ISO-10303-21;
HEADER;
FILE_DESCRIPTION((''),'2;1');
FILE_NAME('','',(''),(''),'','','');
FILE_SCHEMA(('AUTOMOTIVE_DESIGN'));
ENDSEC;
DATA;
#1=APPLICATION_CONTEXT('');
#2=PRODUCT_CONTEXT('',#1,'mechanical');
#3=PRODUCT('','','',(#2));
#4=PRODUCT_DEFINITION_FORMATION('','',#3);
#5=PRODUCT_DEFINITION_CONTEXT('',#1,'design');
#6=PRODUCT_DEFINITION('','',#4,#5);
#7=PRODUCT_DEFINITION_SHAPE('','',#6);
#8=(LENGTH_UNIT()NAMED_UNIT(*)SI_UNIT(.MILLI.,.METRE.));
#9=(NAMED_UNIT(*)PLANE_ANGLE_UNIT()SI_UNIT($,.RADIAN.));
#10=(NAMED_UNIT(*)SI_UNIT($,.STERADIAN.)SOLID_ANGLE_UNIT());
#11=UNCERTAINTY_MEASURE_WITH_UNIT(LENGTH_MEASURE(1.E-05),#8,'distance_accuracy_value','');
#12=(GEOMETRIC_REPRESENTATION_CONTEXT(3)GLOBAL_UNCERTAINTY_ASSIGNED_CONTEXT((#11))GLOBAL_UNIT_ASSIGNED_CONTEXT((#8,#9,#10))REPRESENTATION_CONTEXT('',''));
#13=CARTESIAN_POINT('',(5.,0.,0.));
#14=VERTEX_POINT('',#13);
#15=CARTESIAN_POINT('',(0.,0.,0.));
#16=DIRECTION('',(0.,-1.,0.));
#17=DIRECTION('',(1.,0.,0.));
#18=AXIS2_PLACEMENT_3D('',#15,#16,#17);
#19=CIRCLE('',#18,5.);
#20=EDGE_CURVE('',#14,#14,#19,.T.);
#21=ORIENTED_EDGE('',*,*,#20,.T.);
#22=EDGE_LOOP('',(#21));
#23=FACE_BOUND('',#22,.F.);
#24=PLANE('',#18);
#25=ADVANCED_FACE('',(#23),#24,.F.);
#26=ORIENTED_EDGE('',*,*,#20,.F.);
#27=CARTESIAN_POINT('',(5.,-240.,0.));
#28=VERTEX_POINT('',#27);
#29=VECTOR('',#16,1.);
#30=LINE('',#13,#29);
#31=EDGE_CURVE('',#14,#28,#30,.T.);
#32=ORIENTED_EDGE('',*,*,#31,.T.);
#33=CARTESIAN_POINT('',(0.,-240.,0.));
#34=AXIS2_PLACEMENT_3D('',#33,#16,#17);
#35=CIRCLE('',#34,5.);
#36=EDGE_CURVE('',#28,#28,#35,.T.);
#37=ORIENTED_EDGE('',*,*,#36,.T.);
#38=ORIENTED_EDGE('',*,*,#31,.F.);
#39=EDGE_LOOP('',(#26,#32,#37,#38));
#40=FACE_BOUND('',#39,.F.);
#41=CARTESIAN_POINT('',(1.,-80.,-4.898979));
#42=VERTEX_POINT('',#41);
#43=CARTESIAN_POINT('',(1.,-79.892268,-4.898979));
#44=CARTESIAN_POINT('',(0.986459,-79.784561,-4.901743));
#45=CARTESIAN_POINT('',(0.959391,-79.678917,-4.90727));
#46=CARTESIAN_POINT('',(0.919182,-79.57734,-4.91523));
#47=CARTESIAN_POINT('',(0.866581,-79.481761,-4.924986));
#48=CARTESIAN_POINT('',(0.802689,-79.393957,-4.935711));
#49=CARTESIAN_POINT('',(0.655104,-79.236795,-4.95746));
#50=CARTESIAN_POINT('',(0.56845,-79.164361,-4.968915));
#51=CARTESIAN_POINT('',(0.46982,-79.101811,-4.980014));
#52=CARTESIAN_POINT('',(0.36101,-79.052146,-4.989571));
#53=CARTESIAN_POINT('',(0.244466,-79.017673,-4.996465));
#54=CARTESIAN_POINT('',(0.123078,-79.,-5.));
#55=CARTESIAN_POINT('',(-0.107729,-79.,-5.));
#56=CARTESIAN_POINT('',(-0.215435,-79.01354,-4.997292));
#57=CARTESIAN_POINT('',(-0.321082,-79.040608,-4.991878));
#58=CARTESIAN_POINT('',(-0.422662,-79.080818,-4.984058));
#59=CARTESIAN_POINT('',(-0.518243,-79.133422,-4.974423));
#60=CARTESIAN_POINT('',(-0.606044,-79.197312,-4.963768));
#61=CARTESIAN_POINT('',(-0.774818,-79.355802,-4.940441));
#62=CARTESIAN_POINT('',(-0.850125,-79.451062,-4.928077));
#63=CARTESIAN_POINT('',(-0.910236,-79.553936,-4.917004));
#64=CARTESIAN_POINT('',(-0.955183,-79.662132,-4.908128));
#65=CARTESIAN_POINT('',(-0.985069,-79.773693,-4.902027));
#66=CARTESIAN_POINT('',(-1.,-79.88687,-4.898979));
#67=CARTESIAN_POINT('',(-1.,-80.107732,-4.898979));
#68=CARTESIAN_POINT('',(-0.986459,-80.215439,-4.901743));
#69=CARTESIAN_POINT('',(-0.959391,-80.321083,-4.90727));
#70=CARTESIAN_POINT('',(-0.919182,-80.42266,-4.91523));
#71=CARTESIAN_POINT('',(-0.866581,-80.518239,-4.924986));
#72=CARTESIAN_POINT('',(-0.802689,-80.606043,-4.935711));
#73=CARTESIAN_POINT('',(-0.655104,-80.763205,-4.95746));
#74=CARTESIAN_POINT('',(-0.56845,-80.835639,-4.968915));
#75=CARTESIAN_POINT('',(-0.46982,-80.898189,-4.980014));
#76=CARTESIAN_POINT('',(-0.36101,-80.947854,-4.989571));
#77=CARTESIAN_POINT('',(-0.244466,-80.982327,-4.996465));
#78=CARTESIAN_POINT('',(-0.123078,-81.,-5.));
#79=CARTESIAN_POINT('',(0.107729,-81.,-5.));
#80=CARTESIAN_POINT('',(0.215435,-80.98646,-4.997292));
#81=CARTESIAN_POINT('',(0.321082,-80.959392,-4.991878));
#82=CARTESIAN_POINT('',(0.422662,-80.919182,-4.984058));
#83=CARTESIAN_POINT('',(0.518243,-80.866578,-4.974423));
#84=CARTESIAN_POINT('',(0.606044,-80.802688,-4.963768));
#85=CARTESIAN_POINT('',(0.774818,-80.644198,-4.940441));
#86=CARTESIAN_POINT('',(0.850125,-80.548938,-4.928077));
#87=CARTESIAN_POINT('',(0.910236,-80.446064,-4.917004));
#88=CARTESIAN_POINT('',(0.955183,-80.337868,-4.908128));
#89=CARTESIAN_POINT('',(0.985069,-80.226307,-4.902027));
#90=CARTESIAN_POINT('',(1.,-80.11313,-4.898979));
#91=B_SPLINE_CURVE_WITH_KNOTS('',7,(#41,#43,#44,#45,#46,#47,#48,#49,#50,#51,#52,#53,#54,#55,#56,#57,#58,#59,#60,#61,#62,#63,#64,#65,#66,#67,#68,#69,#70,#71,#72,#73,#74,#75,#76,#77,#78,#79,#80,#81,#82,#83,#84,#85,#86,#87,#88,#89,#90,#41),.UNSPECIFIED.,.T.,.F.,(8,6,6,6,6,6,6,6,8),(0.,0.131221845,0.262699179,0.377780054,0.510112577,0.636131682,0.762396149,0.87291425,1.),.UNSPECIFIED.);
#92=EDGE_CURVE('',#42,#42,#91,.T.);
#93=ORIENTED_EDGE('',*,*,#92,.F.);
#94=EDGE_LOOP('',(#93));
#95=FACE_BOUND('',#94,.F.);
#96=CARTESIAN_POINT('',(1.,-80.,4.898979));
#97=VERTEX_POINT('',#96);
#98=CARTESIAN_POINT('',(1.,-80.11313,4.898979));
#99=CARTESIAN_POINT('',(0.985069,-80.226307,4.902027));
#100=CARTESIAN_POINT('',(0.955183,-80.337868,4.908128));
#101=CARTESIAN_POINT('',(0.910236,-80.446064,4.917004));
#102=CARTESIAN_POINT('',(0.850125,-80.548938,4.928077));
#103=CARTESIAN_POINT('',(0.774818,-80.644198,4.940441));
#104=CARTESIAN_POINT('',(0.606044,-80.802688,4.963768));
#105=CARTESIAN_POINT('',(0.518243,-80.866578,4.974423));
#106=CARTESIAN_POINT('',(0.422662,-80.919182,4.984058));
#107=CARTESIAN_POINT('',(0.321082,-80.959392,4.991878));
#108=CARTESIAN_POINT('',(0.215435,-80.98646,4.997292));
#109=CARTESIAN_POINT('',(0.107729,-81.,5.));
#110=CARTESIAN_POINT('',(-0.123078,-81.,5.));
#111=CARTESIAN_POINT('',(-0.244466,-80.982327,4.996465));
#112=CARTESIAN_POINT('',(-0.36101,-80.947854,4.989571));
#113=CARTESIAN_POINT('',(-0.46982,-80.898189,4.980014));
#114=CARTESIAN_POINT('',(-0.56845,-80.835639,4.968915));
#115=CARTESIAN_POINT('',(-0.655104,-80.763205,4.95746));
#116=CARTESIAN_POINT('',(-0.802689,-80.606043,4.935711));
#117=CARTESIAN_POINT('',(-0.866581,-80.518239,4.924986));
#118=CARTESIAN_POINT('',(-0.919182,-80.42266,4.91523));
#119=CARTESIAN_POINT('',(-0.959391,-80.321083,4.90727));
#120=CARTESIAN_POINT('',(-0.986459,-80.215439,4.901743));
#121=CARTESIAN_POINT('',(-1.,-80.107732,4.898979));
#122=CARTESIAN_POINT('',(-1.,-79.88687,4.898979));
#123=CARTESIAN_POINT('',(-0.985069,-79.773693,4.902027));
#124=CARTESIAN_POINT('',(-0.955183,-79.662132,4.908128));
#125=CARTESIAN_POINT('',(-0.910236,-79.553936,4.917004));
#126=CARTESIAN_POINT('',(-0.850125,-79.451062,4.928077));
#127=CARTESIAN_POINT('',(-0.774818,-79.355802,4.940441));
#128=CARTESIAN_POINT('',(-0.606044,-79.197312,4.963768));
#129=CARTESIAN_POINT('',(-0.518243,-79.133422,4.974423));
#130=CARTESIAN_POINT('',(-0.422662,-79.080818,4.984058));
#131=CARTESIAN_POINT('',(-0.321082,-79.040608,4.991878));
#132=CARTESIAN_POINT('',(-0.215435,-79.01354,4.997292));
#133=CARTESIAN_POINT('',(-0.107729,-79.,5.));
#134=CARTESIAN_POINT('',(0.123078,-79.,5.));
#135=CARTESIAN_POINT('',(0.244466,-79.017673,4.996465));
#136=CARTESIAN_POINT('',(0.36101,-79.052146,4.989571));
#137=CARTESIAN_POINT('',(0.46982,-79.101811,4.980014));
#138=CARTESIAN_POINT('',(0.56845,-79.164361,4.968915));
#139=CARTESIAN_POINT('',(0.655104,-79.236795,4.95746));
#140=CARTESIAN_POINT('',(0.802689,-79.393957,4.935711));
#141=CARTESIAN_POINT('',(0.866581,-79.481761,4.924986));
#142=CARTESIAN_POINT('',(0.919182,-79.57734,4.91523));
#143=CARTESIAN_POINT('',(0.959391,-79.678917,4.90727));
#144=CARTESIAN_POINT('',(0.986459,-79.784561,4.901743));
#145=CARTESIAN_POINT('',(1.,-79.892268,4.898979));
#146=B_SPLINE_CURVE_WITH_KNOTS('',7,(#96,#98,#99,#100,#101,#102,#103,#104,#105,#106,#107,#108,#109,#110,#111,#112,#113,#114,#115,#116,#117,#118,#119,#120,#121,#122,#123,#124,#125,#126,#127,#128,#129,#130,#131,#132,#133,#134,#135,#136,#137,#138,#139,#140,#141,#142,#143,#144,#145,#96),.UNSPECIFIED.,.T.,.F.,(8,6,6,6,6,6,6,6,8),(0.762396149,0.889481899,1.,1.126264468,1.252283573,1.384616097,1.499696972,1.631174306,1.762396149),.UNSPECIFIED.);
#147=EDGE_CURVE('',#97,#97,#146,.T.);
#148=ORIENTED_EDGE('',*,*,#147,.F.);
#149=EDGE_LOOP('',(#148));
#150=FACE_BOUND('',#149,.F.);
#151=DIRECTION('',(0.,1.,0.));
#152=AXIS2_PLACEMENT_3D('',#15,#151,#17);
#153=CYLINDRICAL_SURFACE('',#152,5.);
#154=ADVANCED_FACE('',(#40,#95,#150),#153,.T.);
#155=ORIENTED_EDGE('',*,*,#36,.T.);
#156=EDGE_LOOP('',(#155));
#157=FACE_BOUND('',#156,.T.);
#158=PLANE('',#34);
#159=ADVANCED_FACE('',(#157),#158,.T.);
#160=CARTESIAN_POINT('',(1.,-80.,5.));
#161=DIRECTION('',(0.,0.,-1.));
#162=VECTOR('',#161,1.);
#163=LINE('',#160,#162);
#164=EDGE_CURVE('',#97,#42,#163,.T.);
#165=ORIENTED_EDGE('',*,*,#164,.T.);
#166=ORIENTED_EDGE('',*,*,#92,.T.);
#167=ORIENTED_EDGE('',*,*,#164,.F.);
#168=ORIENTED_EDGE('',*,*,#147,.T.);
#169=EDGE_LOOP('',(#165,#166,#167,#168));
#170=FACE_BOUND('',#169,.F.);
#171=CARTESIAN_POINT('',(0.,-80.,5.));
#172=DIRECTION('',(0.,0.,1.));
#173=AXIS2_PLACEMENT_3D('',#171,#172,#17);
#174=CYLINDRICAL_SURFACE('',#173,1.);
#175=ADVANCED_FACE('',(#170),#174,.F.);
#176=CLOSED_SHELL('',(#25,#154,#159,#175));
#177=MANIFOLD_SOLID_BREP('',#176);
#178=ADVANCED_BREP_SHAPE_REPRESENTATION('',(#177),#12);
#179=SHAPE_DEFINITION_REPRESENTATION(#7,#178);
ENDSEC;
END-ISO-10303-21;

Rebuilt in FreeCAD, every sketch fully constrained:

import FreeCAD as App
import Part
import Sketcher
Q = App.Units.Quantity

doc = App.newDocument("Part")
params = doc.addObject("Spreadsheet::Sheet", "Params")
for row, (alias, value) in enumerate([
    ("sketch1_diameter", "10 mm"),
    ("pad1_length", "240 mm"),
    ("sketch2_diameter", "2 mm"),
], start=1):
    params.set(f"A{row}", alias)
    params.set(f"B{row}", "=" + value)
    params.setAlias(f"B{row}", alias)

body = doc.addObject("PartDesign::Body", "Body")

sketch1 = body.newObject("Sketcher::SketchObject", "Sketch")
sketch1.AttachmentSupport = (doc.getObject("XZ_Plane"), [""])
sketch1.MapMode = "FlatFace"
sketch1.addGeometry(Part.Circle(App.Vector(0, 0, 0), App.Vector(0, 0, 1), 5), False)
sketch1.addConstraint([
    Sketcher.Constraint("Coincident", 0, 3, -1, 1),
    Sketcher.Constraint("Diameter", 0, Q("10 mm")),
])
sketch1.setExpression("Constraints[1]", "Params.sketch1_diameter")
pad1 = body.newObject("PartDesign::Pad", "Pad")
pad1.Profile = sketch1
pad1.setExpression("Length", "Params.pad1_length")

sketch2 = body.newObject("Sketcher::SketchObject", "Sketch001")
sketch2.AttachmentSupport = (doc.getObject("XY_Plane"), [""])
sketch2.MapMode = "FlatFace"
sketch2.AttachmentOffset = App.Placement(App.Vector(0, 0, 5), App.Rotation())
sketch2.addGeometry(Part.Circle(App.Vector(0, -80, 0), App.Vector(0, 0, 1), 1), False)
sketch2.addConstraint([
    Sketcher.Constraint("PointOnObject", 0, 3, -2),
    Sketcher.Constraint("Diameter", 0, Q("2 mm")),
    Sketcher.Constraint("DistanceY", 0, 3, -1, 1, Q("80 mm")),
])
sketch2.setExpression("Constraints[1]", "Params.sketch2_diameter")
pocket1 = body.newObject("PartDesign::Pocket", "Pocket")
pocket1.Profile = sketch2
pocket1.Type = "ThroughAll"

doc.recompute()
